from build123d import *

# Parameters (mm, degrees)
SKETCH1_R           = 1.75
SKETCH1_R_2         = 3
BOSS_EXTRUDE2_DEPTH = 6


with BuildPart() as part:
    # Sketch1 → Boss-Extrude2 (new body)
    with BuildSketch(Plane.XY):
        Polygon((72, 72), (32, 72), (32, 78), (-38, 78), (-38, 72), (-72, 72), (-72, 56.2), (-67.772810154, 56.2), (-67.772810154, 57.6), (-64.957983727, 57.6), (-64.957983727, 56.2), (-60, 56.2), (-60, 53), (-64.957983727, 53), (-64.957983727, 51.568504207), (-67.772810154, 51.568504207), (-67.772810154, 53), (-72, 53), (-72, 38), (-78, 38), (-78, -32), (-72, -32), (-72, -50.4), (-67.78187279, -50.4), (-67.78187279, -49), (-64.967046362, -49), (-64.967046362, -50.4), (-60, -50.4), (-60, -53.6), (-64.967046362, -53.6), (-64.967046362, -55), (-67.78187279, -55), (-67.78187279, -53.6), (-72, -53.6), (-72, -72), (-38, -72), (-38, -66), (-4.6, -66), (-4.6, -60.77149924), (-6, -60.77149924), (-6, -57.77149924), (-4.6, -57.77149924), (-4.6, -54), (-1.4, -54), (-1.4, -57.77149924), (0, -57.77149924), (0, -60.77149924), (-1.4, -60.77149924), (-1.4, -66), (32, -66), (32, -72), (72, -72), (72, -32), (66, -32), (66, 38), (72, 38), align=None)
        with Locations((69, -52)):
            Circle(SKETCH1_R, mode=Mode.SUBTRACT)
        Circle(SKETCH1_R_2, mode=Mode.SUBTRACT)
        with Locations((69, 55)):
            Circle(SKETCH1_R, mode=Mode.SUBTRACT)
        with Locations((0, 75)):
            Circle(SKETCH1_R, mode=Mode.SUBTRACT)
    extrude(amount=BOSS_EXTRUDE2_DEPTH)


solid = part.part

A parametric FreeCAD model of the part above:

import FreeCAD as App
import Part
import Sketcher
Q = App.Units.Quantity


def add_polygon(sketch, points):
    """Adds a closed chain of lines whose ends are joined by coincident constraints."""
    first, n = sketch.GeometryCount, len(points)
    for a, b in zip(points, points[1:] + points[:1]):
        sketch.addGeometry(Part.LineSegment(App.Vector(*a, 0), App.Vector(*b, 0)), False)
    for i in range(n):
        sketch.addConstraint(Sketcher.Constraint("Coincident", first + i, 2, first + (i + 1) % n, 1))

doc = App.newDocument("Part")
params = doc.addObject("Spreadsheet::Sheet", "Params")
for row, (alias, value) in enumerate([
    ("sketch1_diameter", "6 mm"),
    ("sketch1_diameter2", "3.5 mm"),
    ("sketch1_width", "40 mm"),
    ("sketch1_width2", "70 mm"),
    ("sketch1_width3", "34 mm"),
    ("pad1_length", "6 mm"),
], start=1):
    params.set(f"A{row}", alias)
    params.set(f"B{row}", "=" + value)
    params.setAlias(f"B{row}", alias)

body = doc.addObject("PartDesign::Body", "Body")

sketch1 = doc.addObject("Sketcher::SketchObject", "Sketch")
body.addObject(sketch1)
sketch1.AttachmentSupport = (doc.XY_Plane, [""])
sketch1.MapMode = "FlatFace"
add_polygon(sketch1, [(72, 72), (32, 72), (32, 78), (-38, 78), (-38, 72), (-72, 72), (-72, 56.2), (-67.77281, 56.2), (-67.77281, 57.6), (-64.957984, 57.6), (-64.957984, 56.2), (-60, 56.2), (-60, 53), (-64.957984, 53), (-64.957984, 51.568504), (-67.77281, 51.568504), (-67.77281, 53), (-72, 53), (-72, 38), (-78, 38), (-78, -32), (-72, -32), (-72, -50.4), (-67.781873, -50.4), (-67.781873, -49), (-64.967046, -49), (-64.967046, -50.4), (-60, -50.4), (-60, -53.6), (-64.967046, -53.6), (-64.967046, -55), (-67.781873, -55), (-67.781873, -53.6), (-72, -53.6), (-72, -72), (-38, -72), (-38, -66), (-4.6, -66), (-4.6, -60.771499), (-6, -60.771499), (-6, -57.771499), (-4.6, -57.771499), (-4.6, -54), (-1.4, -54), (-1.4, -57.771499), (0, -57.771499), (0, -60.771499), (-1.4, -60.771499), (-1.4, -66), (32, -66), (32, -72), (72, -72), (72, -32), (66, -32), (66, 38), (72, 38)])
sketch1.addGeometry(Part.Circle(App.Vector(0, 0, 0), App.Vector(0, 0, 1), 3), False)
sketch1.addGeometry(Part.Circle(App.Vector(69, -52, 0), App.Vector(0, 0, 1), 1.75), False)
sketch1.addGeometry(Part.Circle(App.Vector(0, 75, 0), App.Vector(0, 0, 1), 1.75), False)
sketch1.addGeometry(Part.Circle(App.Vector(69, 55, 0), App.Vector(0, 0, 1), 1.75), False)
sketch1.addConstraint(Sketcher.Constraint("Horizontal", 0))
sketch1.addConstraint(Sketcher.Constraint("Vertical", 1))
sketch1.addConstraint(Sketcher.Constraint("Horizontal", 2))
sketch1.addConstraint(Sketcher.Constraint("Vertical", 3))
sketch1.addConstraint(Sketcher.Constraint("Horizontal", 4))
sketch1.addConstraint(Sketcher.Constraint("Vertical", 5))
sketch1.addConstraint(Sketcher.Constraint("Horizontal", 6))
sketch1.addConstraint(Sketcher.Constraint("Vertical", 7))
sketch1.addConstraint(Sketcher.Constraint("Horizontal", 8))
sketch1.addConstraint(Sketcher.Constraint("Vertical", 9))
sketch1.addConstraint(Sketcher.Constraint("Horizontal", 10))
sketch1.addConstraint(Sketcher.Constraint("Vertical", 11))
sketch1.addConstraint(Sketcher.Constraint("Horizontal", 12))
sketch1.addConstraint(Sketcher.Constraint("Vertical", 13))
sketch1.addConstraint(Sketcher.Constraint("Horizontal", 14))
sketch1.addConstraint(Sketcher.Constraint("Vertical", 15))
sketch1.addConstraint(Sketcher.Constraint("Horizontal", 16))
sketch1.addConstraint(Sketcher.Constraint("Vertical", 17))
sketch1.addConstraint(Sketcher.Constraint("Horizontal", 18))
sketch1.addConstraint(Sketcher.Constraint("Vertical", 19))
sketch1.addConstraint(Sketcher.Constraint("Horizontal", 20))
sketch1.addConstraint(Sketcher.Constraint("Vertical", 21))
sketch1.addConstraint(Sketcher.Constraint("Horizontal", 22))
sketch1.addConstraint(Sketcher.Constraint("Vertical", 23))
sketch1.addConstraint(Sketcher.Constraint("Horizontal", 24))
sketch1.addConstraint(Sketcher.Constraint("Vertical", 25))
sketch1.addConstraint(Sketcher.Constraint("Horizontal", 26))
sketch1.addConstraint(Sketcher.Constraint("Vertical", 27))
sketch1.addConstraint(Sketcher.Constraint("Horizontal", 28))
sketch1.addConstraint(Sketcher.Constraint("Vertical", 29))
sketch1.addConstraint(Sketcher.Constraint("Horizontal", 30))
sketch1.addConstraint(Sketcher.Constraint("Vertical", 31))
sketch1.addConstraint(Sketcher.Constraint("Horizontal", 32))
sketch1.addConstraint(Sketcher.Constraint("Vertical", 33))
sketch1.addConstraint(Sketcher.Constraint("Horizontal", 34))
sketch1.addConstraint(Sketcher.Constraint("Vertical", 35))
sketch1.addConstraint(Sketcher.Constraint("Horizontal", 36))
sketch1.addConstraint(Sketcher.Constraint("Vertical", 37))
sketch1.addConstraint(Sketcher.Constraint("Horizontal", 38))
sketch1.addConstraint(Sketcher.Constraint("Vertical", 39))
sketch1.addConstraint(Sketcher.Constraint("Horizontal", 40))
sketch1.addConstraint(Sketcher.Constraint("Vertical", 41))
sketch1.addConstraint(Sketcher.Constraint("Horizontal", 42))
sketch1.addConstraint(Sketcher.Constraint("Vertical", 43))
sketch1.addConstraint(Sketcher.Constraint("Horizontal", 44))
sketch1.addConstraint(Sketcher.Constraint("Vertical", 45))
sketch1.addConstraint(Sketcher.Constraint("Horizontal", 46))
sketch1.addConstraint(Sketcher.Constraint("Vertical", 47))
sketch1.addConstraint(Sketcher.Constraint("Horizontal", 48))
sketch1.addConstraint(Sketcher.Constraint("Vertical", 49))
sketch1.addConstraint(Sketcher.Constraint("Horizontal", 50))
sketch1.addConstraint(Sketcher.Constraint("Vertical", 51))
sketch1.addConstraint(Sketcher.Constraint("Horizontal", 52))
sketch1.addConstraint(Sketcher.Constraint("Vertical", 53))
sketch1.addConstraint(Sketcher.Constraint("Horizontal", 54))
sketch1.addConstraint(Sketcher.Constraint("Vertical", 55))
sketch1.addConstraint(Sketcher.Constraint("Coincident", 56, 3, -1, 1))
sketch1.addConstraint(Sketcher.Constraint("Equal", 57, 58))
sketch1.addConstraint(Sketcher.Constraint("Equal", 58, 59))
sketch1.addConstraint(Sketcher.Constraint("Symmetric", 4, 2, 50, 2, -1, 1))
sketch1.addConstraint(Sketcher.Constraint("Symmetric", 33, 2, 55, 2, -1, 1))
sketch1.addConstraint(Sketcher.Constraint("Symmetric", 33, 2, 50, 2, -2))
sketch1.addConstraint(Sketcher.Constraint("Symmetric", 20, 2, 51, 2, -2))
sketch1.addConstraint(Sketcher.Constraint("Symmetric", 17, 2, 54, 2, -2))
sketch1.addConstraint(Sketcher.Constraint("PointOnObject", 58, 3, -2))
sketch1.addConstraint(Sketcher.Constraint("PointOnObject", 44, 2, -2))
sketch1.addConstraint(Sketcher.Constraint("Horizontal", 6, 2, 9, 2))
sketch1.addConstraint(Sketcher.Constraint("Horizontal", 12, 2, 15, 2))
sketch1.addConstraint(Sketcher.Constraint("Horizontal", 22, 2, 25, 2))
sketch1.addConstraint(Sketcher.Constraint("Horizontal", 28, 2, 31, 2))
sketch1.addConstraint(Sketcher.Constraint("Horizontal", 40, 2, 43, 2))
sketch1.addConstraint(Sketcher.Constraint("Horizontal", 38, 2, 45, 2))
sketch1.addConstraint(Sketcher.Constraint("Horizontal", 36, 2, 47, 2))
sketch1.addConstraint(Sketcher.Constraint("Vertical", 57, 3, 59, 3))
sketch1.addConstraint(Sketcher.Constraint("Vertical", 9, 2, 12, 2))
sketch1.addConstraint(Sketcher.Constraint("Vertical", 7, 2, 14, 2))
sketch1.addConstraint(Sketcher.Constraint("Vertical", 11, 2, 26, 2))
sketch1.addConstraint(Sketcher.Constraint("Vertical", 25, 2, 28, 2))
sketch1.addConstraint(Sketcher.Constraint("Vertical", 23, 2, 30, 2))
sketch1.addConstraint(Sketcher.Constraint("Vertical", 3, 2, 34, 2))
sketch1.addConstraint(Sketcher.Constraint("Vertical", 37, 2, 40, 2))
sketch1.addConstraint(Sketcher.Constraint("Vertical", 43, 2, 46, 2))
sketch1.addConstraint(Sketcher.Constraint("Vertical", 1, 2, 48, 2))
sketch1.addConstraint(Sketcher.Constraint("Equal", 14, 24))
sketch1.addConstraint(Sketcher.Constraint("Equal", 40, 44))
sketch1.addConstraint(Sketcher.Constraint("Equal", 36, 48))
sketch1.addConstraint(Sketcher.Constraint("Equal", 20, 52))
sketch1.addConstraint(Sketcher.Constraint("Equal", 54, 1))
sketch1.addConstraint(Sketcher.Constraint("Equal", 46, 7))
sketch1.addConstraint(Sketcher.Constraint("Equal", 42, 11))
sketch1.addConstraint(Sketcher.Constraint("Equal", 2, 19))
sketch1.addConstraint(Sketcher.Constraint("Equal", 9, 23))
sketch1.addConstraint(Sketcher.Constraint("Equal", 11, 27))
sketch1.addConstraint(Sketcher.Constraint("Equal", 25, 29))
sketch1.addConstraint(Sketcher.Constraint("Equal", 21, 33))
sketch1.addConstraint(Sketcher.Constraint("Equal", 3, 35))
sketch1.addConstraint(Sketcher.Constraint("Equal", 50, 51))
sketch1.addConstraint(Sketcher.Constraint("Equal", 34, 55))
sketch1.addConstraint(Sketcher.Constraint("Diameter", 56, Q("6 mm")))
sketch1.addConstraint(Sketcher.Constraint("Diameter", 57, Q("3.5 mm")))
sketch1.addConstraint(Sketcher.Constraint("DistanceX", 0, 2, 0, 1, Q("40 mm")))
sketch1.addConstraint(Sketcher.Constraint("DistanceX", 2, 2, 2, 1, Q("70 mm")))
sketch1.addConstraint(Sketcher.Constraint("DistanceX", 4, 2, 4, 1, Q("34 mm")))
sketch1.addConstraint(Sketcher.Constraint("DistanceX", 18, 2, 18, 1, Q("6 mm")))
sketch1.addConstraint(Sketcher.Constraint("DistanceY", 17, 2, 17, 1, Q("15 mm")))
sketch1.addConstraint(Sketcher.Constraint("DistanceY", 39, 1, 39, 2, Q("3 mm")))
sketch1.addConstraint(Sketcher.Constraint("DistanceX", 36, 1, 36, 2, Q("33.4 mm")))
sketch1.addConstraint(Sketcher.Constraint("DistanceX", -1, 1, 57, 3, Q("69 mm")))
sketch1.addConstraint(Sketcher.Constraint("DistanceY", 57, 3, -1, 1, Q("52 mm")))
sketch1.addConstraint(Sketcher.Constraint("DistanceY", -1, 1, 58, 3, Q("75 mm")))
sketch1.addConstraint(Sketcher.Constraint("DistanceY", -1, 1, 59, 3, Q("55 mm")))
sketch1.addConstraint(Sketcher.Constraint("DistanceX", 10, 2, -1, 1, Q("60 mm")))
sketch1.addConstraint(Sketcher.Constraint("DistanceY", 41, 2, -1, 1, Q("54 mm")))
sketch1.addConstraint(Sketcher.Constraint("DistanceY", 37, 1, 37, 2, Q("5.228501 mm")))
sketch1.addConstraint(Sketcher.Constraint("DistanceX", 6, 1, 6, 2, Q("4.22719 mm")))
sketch1.addConstraint(Sketcher.Constraint("DistanceX", 8, 1, 8, 2, Q("2.814826 mm")))
sketch1.addConstraint(Sketcher.Constraint("DistanceX", 22, 1, 22, 2, Q("4.218127 mm")))
sketch1.addConstraint(Sketcher.Constraint("DistanceY", 13, 2, 13, 1, Q("1.431496 mm")))
sketch1.setExpression("Constraints[154]", "Params.sketch1_diameter")
sketch1.setExpression("Constraints[155]", "Params.sketch1_diameter2")
sketch1.setExpression("Constraints[156]", "Params.sketch1_width")
sketch1.setExpression("Constraints[157]", "Params.sketch1_width2")
sketch1.setExpression("Constraints[158]", "Params.sketch1_width3")
pad1 = doc.addObject("PartDesign::Pad", "Pad")
body.addObject(pad1)
pad1.Profile = sketch1
pad1.setExpression("Length", "Params.pad1_length")

doc.recompute()
